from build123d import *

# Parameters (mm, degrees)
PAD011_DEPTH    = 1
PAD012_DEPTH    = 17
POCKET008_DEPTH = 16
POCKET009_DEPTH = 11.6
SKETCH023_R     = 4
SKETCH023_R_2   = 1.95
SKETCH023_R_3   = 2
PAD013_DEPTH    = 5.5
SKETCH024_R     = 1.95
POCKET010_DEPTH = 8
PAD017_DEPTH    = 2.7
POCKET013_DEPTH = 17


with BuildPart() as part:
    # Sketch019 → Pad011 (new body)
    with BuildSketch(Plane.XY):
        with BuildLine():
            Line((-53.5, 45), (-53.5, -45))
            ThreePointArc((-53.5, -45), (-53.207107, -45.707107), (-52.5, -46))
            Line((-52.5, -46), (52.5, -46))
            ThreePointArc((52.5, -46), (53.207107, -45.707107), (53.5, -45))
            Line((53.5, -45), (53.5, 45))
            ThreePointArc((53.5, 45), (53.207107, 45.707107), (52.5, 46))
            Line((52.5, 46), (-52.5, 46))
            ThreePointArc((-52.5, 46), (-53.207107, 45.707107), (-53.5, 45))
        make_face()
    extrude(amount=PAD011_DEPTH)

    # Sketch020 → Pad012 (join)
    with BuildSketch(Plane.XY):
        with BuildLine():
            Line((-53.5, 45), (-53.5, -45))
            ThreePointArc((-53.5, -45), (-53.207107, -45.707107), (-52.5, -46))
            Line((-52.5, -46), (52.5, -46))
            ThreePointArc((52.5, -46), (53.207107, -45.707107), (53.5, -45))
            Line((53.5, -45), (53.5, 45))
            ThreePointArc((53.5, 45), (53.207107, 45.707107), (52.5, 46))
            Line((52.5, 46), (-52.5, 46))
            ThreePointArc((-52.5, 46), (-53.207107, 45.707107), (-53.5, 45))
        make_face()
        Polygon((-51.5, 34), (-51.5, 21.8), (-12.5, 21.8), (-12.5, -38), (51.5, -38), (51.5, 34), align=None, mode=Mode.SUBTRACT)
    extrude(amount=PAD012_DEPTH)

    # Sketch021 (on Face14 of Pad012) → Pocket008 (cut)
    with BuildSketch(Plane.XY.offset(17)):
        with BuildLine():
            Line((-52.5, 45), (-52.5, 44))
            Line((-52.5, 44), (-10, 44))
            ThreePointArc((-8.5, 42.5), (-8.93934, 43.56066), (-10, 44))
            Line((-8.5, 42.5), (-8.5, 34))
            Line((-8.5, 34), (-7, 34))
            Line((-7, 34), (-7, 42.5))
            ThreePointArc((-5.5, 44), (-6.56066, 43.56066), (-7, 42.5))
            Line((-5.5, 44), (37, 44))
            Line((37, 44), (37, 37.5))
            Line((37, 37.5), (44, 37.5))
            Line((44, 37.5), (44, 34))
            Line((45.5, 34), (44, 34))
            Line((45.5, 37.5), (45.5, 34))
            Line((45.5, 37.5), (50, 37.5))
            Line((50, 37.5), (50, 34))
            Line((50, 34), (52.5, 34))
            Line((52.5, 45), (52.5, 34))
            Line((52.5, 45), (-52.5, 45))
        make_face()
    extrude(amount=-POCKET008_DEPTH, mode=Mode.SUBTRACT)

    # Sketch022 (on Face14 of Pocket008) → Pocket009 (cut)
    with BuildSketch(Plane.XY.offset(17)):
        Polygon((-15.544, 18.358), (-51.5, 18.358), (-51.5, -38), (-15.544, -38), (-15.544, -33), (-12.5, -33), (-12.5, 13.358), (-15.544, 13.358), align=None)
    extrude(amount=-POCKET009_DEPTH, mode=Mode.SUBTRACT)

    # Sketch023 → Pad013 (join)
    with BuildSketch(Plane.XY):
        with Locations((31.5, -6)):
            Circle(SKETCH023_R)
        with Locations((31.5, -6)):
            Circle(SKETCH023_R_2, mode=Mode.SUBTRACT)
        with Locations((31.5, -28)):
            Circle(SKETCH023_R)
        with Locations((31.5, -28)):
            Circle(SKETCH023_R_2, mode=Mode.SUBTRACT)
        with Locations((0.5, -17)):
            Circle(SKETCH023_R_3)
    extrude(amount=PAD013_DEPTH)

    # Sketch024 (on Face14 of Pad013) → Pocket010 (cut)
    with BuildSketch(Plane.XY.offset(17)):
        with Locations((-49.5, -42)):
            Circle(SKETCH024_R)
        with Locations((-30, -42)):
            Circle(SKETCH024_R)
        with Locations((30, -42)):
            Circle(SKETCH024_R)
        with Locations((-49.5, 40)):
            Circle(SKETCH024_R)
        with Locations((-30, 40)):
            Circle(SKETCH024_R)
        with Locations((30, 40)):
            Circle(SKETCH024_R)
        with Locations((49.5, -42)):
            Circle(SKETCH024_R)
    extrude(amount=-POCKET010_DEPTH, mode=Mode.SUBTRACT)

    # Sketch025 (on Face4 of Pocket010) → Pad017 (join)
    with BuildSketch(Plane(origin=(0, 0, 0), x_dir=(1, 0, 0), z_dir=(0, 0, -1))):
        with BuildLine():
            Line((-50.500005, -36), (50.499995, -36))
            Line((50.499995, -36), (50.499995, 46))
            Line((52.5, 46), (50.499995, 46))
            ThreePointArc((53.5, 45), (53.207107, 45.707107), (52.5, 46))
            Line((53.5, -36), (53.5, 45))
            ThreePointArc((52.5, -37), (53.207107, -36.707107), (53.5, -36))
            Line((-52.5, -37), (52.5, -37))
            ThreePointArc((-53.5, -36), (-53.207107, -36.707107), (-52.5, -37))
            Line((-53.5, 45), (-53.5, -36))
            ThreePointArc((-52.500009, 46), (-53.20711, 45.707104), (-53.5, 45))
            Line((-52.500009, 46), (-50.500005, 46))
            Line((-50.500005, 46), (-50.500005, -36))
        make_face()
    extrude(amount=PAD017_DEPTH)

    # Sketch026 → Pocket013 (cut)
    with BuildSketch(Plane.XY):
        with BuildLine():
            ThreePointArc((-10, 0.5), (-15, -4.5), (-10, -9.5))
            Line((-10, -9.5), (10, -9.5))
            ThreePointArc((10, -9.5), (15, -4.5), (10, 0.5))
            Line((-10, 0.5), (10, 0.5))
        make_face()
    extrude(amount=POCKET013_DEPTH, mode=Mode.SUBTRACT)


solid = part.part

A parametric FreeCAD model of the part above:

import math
import FreeCAD as App
import Part
import Sketcher
from FreeCAD import Vector


def add_polygon(sketch, points):
    """Adds a closed chain of lines whose ends are joined by coincident constraints."""
    first, n = sketch.GeometryCount, len(points)
    for a, b in zip(points, points[1:] + points[:1]):
        sketch.addGeometry(Part.LineSegment(App.Vector(*a, 0), App.Vector(*b, 0)), False)
    for i in range(n):
        sketch.addConstraint(Sketcher.Constraint("Coincident", first + i, 2, first + (i + 1) % n, 1))

doc = App.newDocument("Part")
body = doc.addObject("PartDesign::Body", "Body")

sketch1 = body.newObject("Sketcher::SketchObject", "Sketch")
sketch1.AttachmentSupport = (doc.getObject("XY_Plane"), [""])
sketch1.MapMode = "FlatFace"
sketch1.addGeometry([
    Part.LineSegment(Vector(-53.5, 45, 0), Vector(-53.5, -45, 0)),
    Part.ArcOfCircle(Part.Circle(Vector(-52.5, -45, 0), Vector(0, 0, 1), 1), math.radians(180), math.radians(270)),
    Part.LineSegment(Vector(-52.5, -46, 0), Vector(52.5, -46, 0)),
    Part.ArcOfCircle(Part.Circle(Vector(52.5, -45, 0), Vector(0, 0, 1), 1), math.radians(-90), math.radians(0)),
    Part.LineSegment(Vector(53.5, -45, 0), Vector(53.5, 45, 0)),
    Part.ArcOfCircle(Part.Circle(Vector(52.5, 45, 0), Vector(0, 0, 1), 1), math.radians(0), math.radians(90)),
    Part.LineSegment(Vector(52.5, 46, 0), Vector(-52.5, 46, 0)),
    Part.ArcOfCircle(Part.Circle(Vector(-52.5, 45, 0), Vector(0, 0, 1), 1), math.radians(90), math.radians(180)),
], False)
sketch1.addConstraint([
    Sketcher.Constraint("Tangent", 0, 2, 1, 1),
    Sketcher.Constraint("Tangent", 1, 2, 2, 1),
    Sketcher.Constraint("Tangent", 2, 2, 3, 1),
    Sketcher.Constraint("Tangent", 3, 2, 4, 1),
    Sketcher.Constraint("Tangent", 4, 2, 5, 1),
    Sketcher.Constraint("Tangent", 5, 2, 6, 1),
    Sketcher.Constraint("Tangent", 6, 2, 7, 1),
    Sketcher.Constraint("Tangent", 7, 2, 0, 1),
    Sketcher.Constraint("Vertical", 0),
    Sketcher.Constraint("Horizontal", 2),
    Sketcher.Constraint("Vertical", 4),
    Sketcher.Constraint("Horizontal", 6),
    Sketcher.Constraint("Equal", 1, 3),
    Sketcher.Constraint("Equal", 3, 5),
    Sketcher.Constraint("Equal", 5, 7),
    Sketcher.Constraint("Symmetric", 1, 3, 5, 3, -1, 1),
    Sketcher.Constraint("Radius", 1, 0.999999),
    Sketcher.Constraint("DistanceX", 2, 1, 2, 2, 105.0),
    Sketcher.Constraint("DistanceY", 0, 2, 0, 1, 90.0),
])
pad1 = body.newObject("PartDesign::Pad", "Pad")
pad1.Profile = sketch1
pad1.Length = 1

sketch2 = body.newObject("Sketcher::SketchObject", "Sketch001")
sketch2.AttachmentSupport = (doc.getObject("XY_Plane"), [""])
sketch2.MapMode = "FlatFace"
sketch2.addGeometry(Part.LineSegment(Vector(-53.5, 45, 0), Vector(-53.5, -45, 0)), False)
sketch2.addGeometry(Part.ArcOfCircle(Part.Circle(Vector(-52.5, -45, 0), Vector(0, 0, 1), 1), math.radians(180), math.radians(270)), False)
sketch2.addGeometry(Part.LineSegment(Vector(-52.5, -46, 0), Vector(52.5, -46, 0)), False)
sketch2.addGeometry(Part.ArcOfCircle(Part.Circle(Vector(52.5, -45, 0), Vector(0, 0, 1), 1), math.radians(-90), math.radians(0)), False)
sketch2.addGeometry(Part.LineSegment(Vector(53.5, -45, 0), Vector(53.5, 45, 0)), False)
sketch2.addGeometry(Part.ArcOfCircle(Part.Circle(Vector(52.5, 45, 0), Vector(0, 0, 1), 1), math.radians(0), math.radians(90)), False)
sketch2.addGeometry(Part.LineSegment(Vector(52.5, 46, 0), Vector(-52.5, 46, 0)), False)
sketch2.addGeometry(Part.ArcOfCircle(Part.Circle(Vector(-52.5, 45, 0), Vector(0, 0, 1), 1), math.radians(90), math.radians(180)), False)
add_polygon(sketch2, [(-51.5, 21.8), (-51.5, 34), (51.5, 34), (51.5, -38), (-12.5, -38), (-12.5, 21.8)])
sketch2.addConstraint([
    Sketcher.Constraint("Tangent", 0, 2, 1, 1),
    Sketcher.Constraint("Tangent", 1, 2, 2, 1),
    Sketcher.Constraint("Tangent", 2, 2, 3, 1),
    Sketcher.Constraint("Tangent", 3, 2, 4, 1),
    Sketcher.Constraint("Tangent", 4, 2, 5, 1),
    Sketcher.Constraint("Tangent", 5, 2, 6, 1),
    Sketcher.Constraint("Tangent", 6, 2, 7, 1),
    Sketcher.Constraint("Tangent", 7, 2, 0, 1),
    Sketcher.Constraint("Vertical", 0),
    Sketcher.Constraint("Horizontal", 2),
    Sketcher.Constraint("Vertical", 4),
    Sketcher.Constraint("Horizontal", 6),
    Sketcher.Constraint("Vertical", 8),
    Sketcher.Constraint("Horizontal", 9),
    Sketcher.Constraint("Vertical", 10),
    Sketcher.Constraint("Horizontal", 11),
    Sketcher.Constraint("Vertical", 12),
    Sketcher.Constraint("Horizontal", 13),
    Sketcher.Constraint("Equal", 1, 3),
    Sketcher.Constraint("Equal", 3, 5),
    Sketcher.Constraint("Equal", 5, 7),
    Sketcher.Constraint("Symmetric", 1, 3, 5, 3, -1, 1),
    Sketcher.Constraint("Radius", 1, 0.999999),
    Sketcher.Constraint("DistanceX", 2, 1, 2, 2, 105.0),
    Sketcher.Constraint("DistanceX", 9, 1, 9, 2, 103.0),
    Sketcher.Constraint("DistanceX", 11, 2, 11, 1, 64.0),
    Sketcher.Constraint("DistanceY", 0, 2, 0, 1, 90.0),
    Sketcher.Constraint("DistanceY", 10, 2, 10, 1, 72.0),
    Sketcher.Constraint("DistanceY", 8, 1, 8, 2, 12.2),
    Sketcher.Constraint("DistanceY", -1, 1, 8, 2, 34.0),
    Sketcher.Constraint("DistanceX", 7, 3, 8, 2, 1.000001),
])
pad2 = body.newObject("PartDesign::Pad", "Pad001")
pad2.Profile = sketch2
pad2.Length = 17

sketch3 = body.newObject("Sketcher::SketchObject", "Sketch002")
sketch3.AttachmentSupport = (doc.getObject("XY_Plane"), [""])
sketch3.MapMode = "FlatFace"
sketch3.AttachmentOffset = App.Placement(Vector(0, 0, 17), App.Rotation())
sketch3.addGeometry([
    Part.LineSegment(Vector(-52.5, 45, 0), Vector(-52.5, 44, 0)),
    Part.LineSegment(Vector(-52.5, 44, 0), Vector(-10, 44, 0)),
    Part.ArcOfCircle(Part.Circle(Vector(-10, 42.5, 0), Vector(0, 0, 1), 1.5), math.radians(0), math.radians(90)),
    Part.LineSegment(Vector(-8.5, 42.5, 0), Vector(-8.5, 34, 0)),
    Part.LineSegment(Vector(-8.5, 34, 0), Vector(-7, 34, 0)),
    Part.LineSegment(Vector(-7, 34, 0), Vector(-7, 42.5, 0)),
    Part.ArcOfCircle(Part.Circle(Vector(-5.5, 42.5, 0), Vector(0, 0, 1), 1.5), math.radians(90), math.radians(180)),
    Part.LineSegment(Vector(-5.5, 44, 0), Vector(37, 44, 0)),
    Part.LineSegment(Vector(37, 44, 0), Vector(37, 37.5, 0)),
    Part.LineSegment(Vector(37, 37.5, 0), Vector(44, 37.5, 0)),
    Part.LineSegment(Vector(44, 37.5, 0), Vector(44, 34, 0)),
    Part.LineSegment(Vector(44, 34, 0), Vector(45.5, 34, 0)),
    Part.LineSegment(Vector(45.5, 34, 0), Vector(45.5, 37.5, 0)),
    Part.LineSegment(Vector(45.5, 37.5, 0), Vector(50, 37.5, 0)),
    Part.LineSegment(Vector(50, 37.5, 0), Vector(50, 34, 0)),
    Part.LineSegment(Vector(50, 34, 0), Vector(52.5, 34, 0)),
    Part.LineSegment(Vector(52.5, 34, 0), Vector(52.5, 45, 0)),
    Part.LineSegment(Vector(52.5, 45, 0), Vector(-52.5, 45, 0)),
], False)
sketch3.addConstraint([
    Sketcher.Constraint("Coincident", 0, 2, 1, 1),
    Sketcher.Constraint("Tangent", 1, 2, 2, 2),
    Sketcher.Constraint("Tangent", 2, 1, 3, 1),
    Sketcher.Constraint("Coincident", 3, 2, 4, 1),
    Sketcher.Constraint("Coincident", 4, 2, 5, 1),
    Sketcher.Constraint("Tangent", 5, 2, 6, 2),
    Sketcher.Constraint("Tangent", 6, 1, 7, 1),
    Sketcher.Constraint("Coincident", 7, 2, 8, 1),
    Sketcher.Constraint("Coincident", 8, 2, 9, 1),
    Sketcher.Constraint("Coincident", 9, 2, 10, 1),
    Sketcher.Constraint("Coincident", 10, 2, 11, 1),
    Sketcher.Constraint("Coincident", 11, 2, 12, 1),
    Sketcher.Constraint("Coincident", 12, 2, 13, 1),
    Sketcher.Constraint("Coincident", 13, 2, 14, 1),
    Sketcher.Constraint("Coincident", 14, 2, 15, 1),
    Sketcher.Constraint("Coincident", 15, 2, 16, 1),
    Sketcher.Constraint("Coincident", 16, 2, 17, 1),
    Sketcher.Constraint("Coincident", 17, 2, 0, 1),
    Sketcher.Constraint("Vertical", 0),
    Sketcher.Constraint("Horizontal", 1),
    Sketcher.Constraint("Vertical", 3),
    Sketcher.Constraint("Horizontal", 4),
    Sketcher.Constraint("Vertical", 5),
    Sketcher.Constraint("Horizontal", 7),
    Sketcher.Constraint("Vertical", 8),
    Sketcher.Constraint("Horizontal", 9),
    Sketcher.Constraint("Vertical", 10),
    Sketcher.Constraint("Horizontal", 11),
    Sketcher.Constraint("Vertical", 12),
    Sketcher.Constraint("Horizontal", 13),
    Sketcher.Constraint("Vertical", 14),
    Sketcher.Constraint("Horizontal", 15),
    Sketcher.Constraint("Vertical", 16),
    Sketcher.Constraint("Horizontal", 17),
    Sketcher.Constraint("Equal", 2, 6),
    Sketcher.Constraint("Horizontal", 2, 3, 6, 3),
    Sketcher.Constraint("Horizontal", 4, 2, 10, 2),
    Sketcher.Constraint("Horizontal", 9, 2, 12, 2),
    Sketcher.Constraint("Horizontal", 11, 2, 14, 2),
    Sketcher.Constraint("Equal", 1, 7),
    Sketcher.Constraint("Equal", 4, 11),
    Sketcher.Constraint("Radius", 2, 1.500001),
    Sketcher.Constraint("DistanceX", 9, 1, 9, 2, 7.0),
    Sketcher.Constraint("DistanceX", 17, 2, 17, 1, 105.0),
    Sketcher.Constraint("DistanceY", 0, 2, 0, 1, 1.0),
    Sketcher.Constraint("DistanceY", 16, 1, 16, 2, 11.0),
    Sketcher.Constraint("DistanceX", 1, 1, 1, 2, 42.5),
    Sketcher.Constraint("DistanceX", 4, 1, 4, 2, 1.5),
    Sketcher.Constraint("DistanceX", 13, 1, 13, 2, 4.5),
    Sketcher.Constraint("DistanceY", 8, 2, 8, 1, 6.5),
    Sketcher.Constraint("DistanceX", 2, 3, -1, 1, 10.000001),
    Sketcher.Constraint("DistanceY", -1, 1, 0, 2, 44.0),
])
pocket1 = body.newObject("PartDesign::Pocket", "Pocket")
pocket1.Profile = sketch3
pocket1.Length = 16

sketch4 = body.newObject("Sketcher::SketchObject", "Sketch003")
sketch4.AttachmentSupport = (doc.getObject("XY_Plane"), [""])
sketch4.MapMode = "FlatFace"
sketch4.AttachmentOffset = App.Placement(Vector(0, 0, 17), App.Rotation())
add_polygon(sketch4, [(-15.5, 18.4), (-51.5, 18.4), (-51.5, -38), (-15.5, -38), (-15.5, -33), (-12.5, -33), (-12.5, 13.4), (-15.5, 13.4)])
sketch4.addConstraint([
    Sketcher.Constraint("Horizontal", 0),
    Sketcher.Constraint("Vertical", 1),
    Sketcher.Constraint("Horizontal", 2),
    Sketcher.Constraint("Vertical", 3),
    Sketcher.Constraint("Horizontal", 4),
    Sketcher.Constraint("Vertical", 5),
    Sketcher.Constraint("Horizontal", 6),
    Sketcher.Constraint("Vertical", 7),
    Sketcher.Constraint("Vertical", 3, 2, 6, 2),
    Sketcher.Constraint("Equal", 3, 7),
    Sketcher.Constraint("DistanceY", 3, 1, 3, 2, 5.0),
    Sketcher.Constraint("DistanceY", 1, 2, -1, 1, 38.0),
    Sketcher.Constraint("DistanceX", 1, 2, 4, 2, 39.0),
    Sketcher.Constraint("DistanceX", 0, 2, -1, 1, 51.5),
    Sketcher.Constraint("DistanceX", 0, 2, 0, 1, 35.956),
    Sketcher.Constraint("DistanceY", 1, 2, 1, 1, 56.358),
])
pocket2 = body.newObject("PartDesign::Pocket", "Pocket001")
pocket2.Profile = sketch4
pocket2.Length = 11.6

sketch5 = body.newObject("Sketcher::SketchObject", "Sketch004")
sketch5.AttachmentSupport = (doc.getObject("XY_Plane"), [""])
sketch5.MapMode = "FlatFace"
sketch5.addGeometry([
    Part.Circle(Vector(31.5, -6, 0), Vector(0, 0, 1), 4),
    Part.Circle(Vector(31.5, -6, 0), Vector(0, 0, 1), 1.9),
    Part.Circle(Vector(31.5, -28, 0), Vector(0, 0, 1), 4),
    Part.Circle(Vector(31.5, -28, 0), Vector(0, 0, 1), 1.9),
    Part.Circle(Vector(0.5, -17, 0), Vector(0, 0, 1), 2),
], False)
sketch5.addConstraint([
    Sketcher.Constraint("Coincident", 1, 3, 0, 3),
    Sketcher.Constraint("Coincident", 3, 3, 2, 3),
    Sketcher.Constraint("Equal", 0, 2),
    Sketcher.Constraint("Equal", 1, 3),
    Sketcher.Constraint("Vertical", 1, 3, 2, 3),
    Sketcher.Constraint("Diameter", 0, 8.0),
    Sketcher.Constraint("Diameter", 4, 4.0),
    Sketcher.Constraint("Diameter", 1, 3.9),
    Sketcher.Constraint("DistanceY", 0, 3, -1, 1, 6.0),
    Sketcher.Constraint("DistanceY", 2, 3, -1, 1, 28.0),
    Sketcher.Constraint("DistanceY", 4, 3, -1, 1, 17.0),
    Sketcher.Constraint("DistanceX", 4, 3, 0, 3, 31.0),
    Sketcher.Constraint("DistanceX", -1, 1, 0, 3, 31.5),
])
pad3 = body.newObject("PartDesign::Pad", "Pad002")
pad3.Profile = sketch5
pad3.Length = 5.5

sketch6 = body.newObject("Sketcher::SketchObject", "Sketch005")
sketch6.AttachmentSupport = (doc.getObject("XY_Plane"), [""])
sketch6.MapMode = "FlatFace"
sketch6.AttachmentOffset = App.Placement(Vector(0, 0, 17), App.Rotation())
sketch6.addGeometry([
    Part.Circle(Vector(-49.5, -42, 0), Vector(0, 0, 1), 1.9),
    Part.Circle(Vector(-30, -42, 0), Vector(0, 0, 1), 1.9),
    Part.Circle(Vector(30, -42, 0), Vector(0, 0, 1), 1.9),
    Part.Circle(Vector(-49.5, 40, 0), Vector(0, 0, 1), 1.9),
    Part.Circle(Vector(-30, 40, 0), Vector(0, 0, 1), 1.9),
    Part.Circle(Vector(30, 40, 0), Vector(0, 0, 1), 1.9),
    Part.Circle(Vector(49.5, -42, 0), Vector(0, 0, 1), 1.9),
], False)
sketch6.addConstraint([
    Sketcher.Constraint("Equal", 0, 1),
    Sketcher.Constraint("Equal", 1, 2),
    Sketcher.Constraint("Equal", 2, 3),
    Sketcher.Constraint("Equal", 3, 4),
    Sketcher.Constraint("Equal", 4, 5),
    Sketcher.Constraint("Equal", 5, 6),
    Sketcher.Constraint("Symmetric", 1, 3, 2, 3, -2),
    Sketcher.Constraint("Symmetric", 4, 3, 5, 3, -2),
    Sketcher.Constraint("Symmetric", 0, 3, 6, 3, -2),
    Sketcher.Constraint("Horizontal", 0, 3, 1, 3),
    Sketcher.Constraint("Horizontal", 3, 3, 4, 3),
    Sketcher.Constraint("Vertical", 0, 3, 3, 3),
    Sketcher.Constraint("Vertical", 1, 3, 4, 3),
    Sketcher.Constraint("Diameter", 0, 3.9),
    Sketcher.Constraint("DistanceY", 0, 3, -1, 1, 42.0),
    Sketcher.Constraint("DistanceX", 1, 3, -1, 1, 30.0),
    Sketcher.Constraint("DistanceY", -1, 1, 3, 3, 40.0),
    Sketcher.Constraint("DistanceX", 0, 3, 6, 3, 99.0),
])
pocket3 = body.newObject("PartDesign::Pocket", "Pocket002")
pocket3.Profile = sketch6
pocket3.Length = 8

sketch7 = body.newObject("Sketcher::SketchObject", "Sketch006")
sketch7.AttachmentSupport = (doc.getObject("XY_Plane"), [""])
sketch7.MapMode = "FlatFace"
sketch7.addGeometry([
    Part.LineSegment(Vector(50.5, 36, 0), Vector(-50.5, 36, 0)),
    Part.LineSegment(Vector(-50.5, 36, 0), Vector(-50.5, -46, 0)),
    Part.LineSegment(Vector(-50.5, -46, 0), Vector(-52.5, -46, 0)),
    Part.ArcOfCircle(Part.Circle(Vector(-52.5, -45, 0), Vector(0, 0, 1), 1), math.radians(180), math.radians(270)),
    Part.LineSegment(Vector(-53.5, -45, 0), Vector(-53.5, 36, 0)),
    Part.ArcOfCircle(Part.Circle(Vector(-52.5, 36, 0), Vector(0, 0, 1), 1), math.radians(90), math.radians(180)),
    Part.LineSegment(Vector(-52.5, 37, 0), Vector(52.5, 37, 0)),
    Part.ArcOfCircle(Part.Circle(Vector(52.5, 36, 0), Vector(0, 0, 1), 1), math.radians(0), math.radians(90)),
    Part.LineSegment(Vector(53.5, 36, 0), Vector(53.5, -45, 0)),
    Part.ArcOfCircle(Part.Circle(Vector(52.5, -45, 0), Vector(0, 0, 1), 1), math.radians(-90), math.radians(0)),
    Part.LineSegment(Vector(52.5, -46, 0), Vector(50.5, -46, 0)),
    Part.LineSegment(Vector(50.5, -46, 0), Vector(50.5, 36, 0)),
], False)
sketch7.addConstraint([
    Sketcher.Constraint("Coincident", 0, 2, 1, 1),
    Sketcher.Constraint("Coincident", 1, 2, 2, 1),
    Sketcher.Constraint("Coincident", 2, 2, 3, 2),
    Sketcher.Constraint("Tangent", 3, 1, 4, 1),
    Sketcher.Constraint("Tangent", 4, 2, 5, 2),
    Sketcher.Constraint("Tangent", 5, 1, 6, 1),
    Sketcher.Constraint("Tangent", 6, 2, 7, 2),
    Sketcher.Constraint("Tangent", 7, 1, 8, 1),
    Sketcher.Constraint("Tangent", 8, 2, 9, 2),
    Sketcher.Constraint("Tangent", 9, 1, 10, 1),
    Sketcher.Constraint("Coincident", 10, 2, 11, 1),
    Sketcher.Constraint("Coincident", 11, 2, 0, 1),
    Sketcher.Constraint("Horizontal", 0),
    Sketcher.Constraint("Vertical", 1),
    Sketcher.Constraint("Horizontal", 2),
    Sketcher.Constraint("Vertical", 4),
    Sketcher.Constraint("Horizontal", 6),
    Sketcher.Constraint("Vertical", 8),
    Sketcher.Constraint("Horizontal", 10),
    Sketcher.Constraint("Vertical", 11),
    Sketcher.Constraint("Equal", 3, 5),
    Sketcher.Constraint("Equal", 5, 7),
    Sketcher.Constraint("Equal", 7, 9),
    Sketcher.Constraint("Symmetric", 3, 3, 9, 3, -2),
    Sketcher.Constraint("Horizontal", 7, 3, 0, 2),
    Sketcher.Constraint("Equal", 2, 10),
    Sketcher.Constraint("Radius", 3, 0.999999),
    Sketcher.Constraint("DistanceX", 0, 2, 0, 1, 101.0),
    Sketcher.Constraint("DistanceX", 6, 1, 6, 2, 105.0),
    Sketcher.Constraint("DistanceY", 1, 2, 1, 1, 82.0),
    Sketcher.Constraint("DistanceY", 3, 3, -1, 1, 45.000001),
    Sketcher.Constraint("DistanceX", 2, 2, 2, 1, 2.000004),
])
pad4 = body.newObject("PartDesign::Pad", "Pad003")
pad4.Profile = sketch7
pad4.Length = 2.7
pad4.Reversed = True

sketch8 = body.newObject("Sketcher::SketchObject", "Sketch007")
sketch8.AttachmentSupport = (doc.getObject("XY_Plane"), [""])
sketch8.MapMode = "FlatFace"
sketch8.addGeometry([
    Part.ArcOfCircle(Part.Circle(Vector(-10, -4, 0), Vector(0, 0, 1), 5), math.radians(90), math.radians(270)),
    Part.LineSegment(Vector(-10, -10, 0), Vector(10, -10, 0)),
    Part.ArcOfCircle(Part.Circle(Vector(10, -4, 0), Vector(0, 0, 1), 5), math.radians(-90), math.radians(90)),
    Part.LineSegment(Vector(10, 0, 0), Vector(-10, 0, 0)),
], False)
sketch8.addConstraint([
    Sketcher.Constraint("Tangent", 0, 2, 1, 1),
    Sketcher.Constraint("Tangent", 1, 2, 2, 1),
    Sketcher.Constraint("Tangent", 2, 2, 3, 1),
    Sketcher.Constraint("Tangent", 3, 2, 0, 1),
    Sketcher.Constraint("Horizontal", 1),
    Sketcher.Constraint("Horizontal", 3),
    Sketcher.Constraint("Radius", 0, 5.0),
    Sketcher.Constraint("DistanceX", 1, 1, 1, 2, 20.0),
    Sketcher.Constraint("DistanceX", 0, 3, -1, 1, 10.0),
    Sketcher.Constraint("DistanceY", 0, 3, -1, 1, 4.5),
])
pocket4 = body.newObject("PartDesign::Pocket", "Pocket003")
pocket4.Profile = sketch8
pocket4.Length = 17
pocket4.Reversed = True

doc.recompute()
